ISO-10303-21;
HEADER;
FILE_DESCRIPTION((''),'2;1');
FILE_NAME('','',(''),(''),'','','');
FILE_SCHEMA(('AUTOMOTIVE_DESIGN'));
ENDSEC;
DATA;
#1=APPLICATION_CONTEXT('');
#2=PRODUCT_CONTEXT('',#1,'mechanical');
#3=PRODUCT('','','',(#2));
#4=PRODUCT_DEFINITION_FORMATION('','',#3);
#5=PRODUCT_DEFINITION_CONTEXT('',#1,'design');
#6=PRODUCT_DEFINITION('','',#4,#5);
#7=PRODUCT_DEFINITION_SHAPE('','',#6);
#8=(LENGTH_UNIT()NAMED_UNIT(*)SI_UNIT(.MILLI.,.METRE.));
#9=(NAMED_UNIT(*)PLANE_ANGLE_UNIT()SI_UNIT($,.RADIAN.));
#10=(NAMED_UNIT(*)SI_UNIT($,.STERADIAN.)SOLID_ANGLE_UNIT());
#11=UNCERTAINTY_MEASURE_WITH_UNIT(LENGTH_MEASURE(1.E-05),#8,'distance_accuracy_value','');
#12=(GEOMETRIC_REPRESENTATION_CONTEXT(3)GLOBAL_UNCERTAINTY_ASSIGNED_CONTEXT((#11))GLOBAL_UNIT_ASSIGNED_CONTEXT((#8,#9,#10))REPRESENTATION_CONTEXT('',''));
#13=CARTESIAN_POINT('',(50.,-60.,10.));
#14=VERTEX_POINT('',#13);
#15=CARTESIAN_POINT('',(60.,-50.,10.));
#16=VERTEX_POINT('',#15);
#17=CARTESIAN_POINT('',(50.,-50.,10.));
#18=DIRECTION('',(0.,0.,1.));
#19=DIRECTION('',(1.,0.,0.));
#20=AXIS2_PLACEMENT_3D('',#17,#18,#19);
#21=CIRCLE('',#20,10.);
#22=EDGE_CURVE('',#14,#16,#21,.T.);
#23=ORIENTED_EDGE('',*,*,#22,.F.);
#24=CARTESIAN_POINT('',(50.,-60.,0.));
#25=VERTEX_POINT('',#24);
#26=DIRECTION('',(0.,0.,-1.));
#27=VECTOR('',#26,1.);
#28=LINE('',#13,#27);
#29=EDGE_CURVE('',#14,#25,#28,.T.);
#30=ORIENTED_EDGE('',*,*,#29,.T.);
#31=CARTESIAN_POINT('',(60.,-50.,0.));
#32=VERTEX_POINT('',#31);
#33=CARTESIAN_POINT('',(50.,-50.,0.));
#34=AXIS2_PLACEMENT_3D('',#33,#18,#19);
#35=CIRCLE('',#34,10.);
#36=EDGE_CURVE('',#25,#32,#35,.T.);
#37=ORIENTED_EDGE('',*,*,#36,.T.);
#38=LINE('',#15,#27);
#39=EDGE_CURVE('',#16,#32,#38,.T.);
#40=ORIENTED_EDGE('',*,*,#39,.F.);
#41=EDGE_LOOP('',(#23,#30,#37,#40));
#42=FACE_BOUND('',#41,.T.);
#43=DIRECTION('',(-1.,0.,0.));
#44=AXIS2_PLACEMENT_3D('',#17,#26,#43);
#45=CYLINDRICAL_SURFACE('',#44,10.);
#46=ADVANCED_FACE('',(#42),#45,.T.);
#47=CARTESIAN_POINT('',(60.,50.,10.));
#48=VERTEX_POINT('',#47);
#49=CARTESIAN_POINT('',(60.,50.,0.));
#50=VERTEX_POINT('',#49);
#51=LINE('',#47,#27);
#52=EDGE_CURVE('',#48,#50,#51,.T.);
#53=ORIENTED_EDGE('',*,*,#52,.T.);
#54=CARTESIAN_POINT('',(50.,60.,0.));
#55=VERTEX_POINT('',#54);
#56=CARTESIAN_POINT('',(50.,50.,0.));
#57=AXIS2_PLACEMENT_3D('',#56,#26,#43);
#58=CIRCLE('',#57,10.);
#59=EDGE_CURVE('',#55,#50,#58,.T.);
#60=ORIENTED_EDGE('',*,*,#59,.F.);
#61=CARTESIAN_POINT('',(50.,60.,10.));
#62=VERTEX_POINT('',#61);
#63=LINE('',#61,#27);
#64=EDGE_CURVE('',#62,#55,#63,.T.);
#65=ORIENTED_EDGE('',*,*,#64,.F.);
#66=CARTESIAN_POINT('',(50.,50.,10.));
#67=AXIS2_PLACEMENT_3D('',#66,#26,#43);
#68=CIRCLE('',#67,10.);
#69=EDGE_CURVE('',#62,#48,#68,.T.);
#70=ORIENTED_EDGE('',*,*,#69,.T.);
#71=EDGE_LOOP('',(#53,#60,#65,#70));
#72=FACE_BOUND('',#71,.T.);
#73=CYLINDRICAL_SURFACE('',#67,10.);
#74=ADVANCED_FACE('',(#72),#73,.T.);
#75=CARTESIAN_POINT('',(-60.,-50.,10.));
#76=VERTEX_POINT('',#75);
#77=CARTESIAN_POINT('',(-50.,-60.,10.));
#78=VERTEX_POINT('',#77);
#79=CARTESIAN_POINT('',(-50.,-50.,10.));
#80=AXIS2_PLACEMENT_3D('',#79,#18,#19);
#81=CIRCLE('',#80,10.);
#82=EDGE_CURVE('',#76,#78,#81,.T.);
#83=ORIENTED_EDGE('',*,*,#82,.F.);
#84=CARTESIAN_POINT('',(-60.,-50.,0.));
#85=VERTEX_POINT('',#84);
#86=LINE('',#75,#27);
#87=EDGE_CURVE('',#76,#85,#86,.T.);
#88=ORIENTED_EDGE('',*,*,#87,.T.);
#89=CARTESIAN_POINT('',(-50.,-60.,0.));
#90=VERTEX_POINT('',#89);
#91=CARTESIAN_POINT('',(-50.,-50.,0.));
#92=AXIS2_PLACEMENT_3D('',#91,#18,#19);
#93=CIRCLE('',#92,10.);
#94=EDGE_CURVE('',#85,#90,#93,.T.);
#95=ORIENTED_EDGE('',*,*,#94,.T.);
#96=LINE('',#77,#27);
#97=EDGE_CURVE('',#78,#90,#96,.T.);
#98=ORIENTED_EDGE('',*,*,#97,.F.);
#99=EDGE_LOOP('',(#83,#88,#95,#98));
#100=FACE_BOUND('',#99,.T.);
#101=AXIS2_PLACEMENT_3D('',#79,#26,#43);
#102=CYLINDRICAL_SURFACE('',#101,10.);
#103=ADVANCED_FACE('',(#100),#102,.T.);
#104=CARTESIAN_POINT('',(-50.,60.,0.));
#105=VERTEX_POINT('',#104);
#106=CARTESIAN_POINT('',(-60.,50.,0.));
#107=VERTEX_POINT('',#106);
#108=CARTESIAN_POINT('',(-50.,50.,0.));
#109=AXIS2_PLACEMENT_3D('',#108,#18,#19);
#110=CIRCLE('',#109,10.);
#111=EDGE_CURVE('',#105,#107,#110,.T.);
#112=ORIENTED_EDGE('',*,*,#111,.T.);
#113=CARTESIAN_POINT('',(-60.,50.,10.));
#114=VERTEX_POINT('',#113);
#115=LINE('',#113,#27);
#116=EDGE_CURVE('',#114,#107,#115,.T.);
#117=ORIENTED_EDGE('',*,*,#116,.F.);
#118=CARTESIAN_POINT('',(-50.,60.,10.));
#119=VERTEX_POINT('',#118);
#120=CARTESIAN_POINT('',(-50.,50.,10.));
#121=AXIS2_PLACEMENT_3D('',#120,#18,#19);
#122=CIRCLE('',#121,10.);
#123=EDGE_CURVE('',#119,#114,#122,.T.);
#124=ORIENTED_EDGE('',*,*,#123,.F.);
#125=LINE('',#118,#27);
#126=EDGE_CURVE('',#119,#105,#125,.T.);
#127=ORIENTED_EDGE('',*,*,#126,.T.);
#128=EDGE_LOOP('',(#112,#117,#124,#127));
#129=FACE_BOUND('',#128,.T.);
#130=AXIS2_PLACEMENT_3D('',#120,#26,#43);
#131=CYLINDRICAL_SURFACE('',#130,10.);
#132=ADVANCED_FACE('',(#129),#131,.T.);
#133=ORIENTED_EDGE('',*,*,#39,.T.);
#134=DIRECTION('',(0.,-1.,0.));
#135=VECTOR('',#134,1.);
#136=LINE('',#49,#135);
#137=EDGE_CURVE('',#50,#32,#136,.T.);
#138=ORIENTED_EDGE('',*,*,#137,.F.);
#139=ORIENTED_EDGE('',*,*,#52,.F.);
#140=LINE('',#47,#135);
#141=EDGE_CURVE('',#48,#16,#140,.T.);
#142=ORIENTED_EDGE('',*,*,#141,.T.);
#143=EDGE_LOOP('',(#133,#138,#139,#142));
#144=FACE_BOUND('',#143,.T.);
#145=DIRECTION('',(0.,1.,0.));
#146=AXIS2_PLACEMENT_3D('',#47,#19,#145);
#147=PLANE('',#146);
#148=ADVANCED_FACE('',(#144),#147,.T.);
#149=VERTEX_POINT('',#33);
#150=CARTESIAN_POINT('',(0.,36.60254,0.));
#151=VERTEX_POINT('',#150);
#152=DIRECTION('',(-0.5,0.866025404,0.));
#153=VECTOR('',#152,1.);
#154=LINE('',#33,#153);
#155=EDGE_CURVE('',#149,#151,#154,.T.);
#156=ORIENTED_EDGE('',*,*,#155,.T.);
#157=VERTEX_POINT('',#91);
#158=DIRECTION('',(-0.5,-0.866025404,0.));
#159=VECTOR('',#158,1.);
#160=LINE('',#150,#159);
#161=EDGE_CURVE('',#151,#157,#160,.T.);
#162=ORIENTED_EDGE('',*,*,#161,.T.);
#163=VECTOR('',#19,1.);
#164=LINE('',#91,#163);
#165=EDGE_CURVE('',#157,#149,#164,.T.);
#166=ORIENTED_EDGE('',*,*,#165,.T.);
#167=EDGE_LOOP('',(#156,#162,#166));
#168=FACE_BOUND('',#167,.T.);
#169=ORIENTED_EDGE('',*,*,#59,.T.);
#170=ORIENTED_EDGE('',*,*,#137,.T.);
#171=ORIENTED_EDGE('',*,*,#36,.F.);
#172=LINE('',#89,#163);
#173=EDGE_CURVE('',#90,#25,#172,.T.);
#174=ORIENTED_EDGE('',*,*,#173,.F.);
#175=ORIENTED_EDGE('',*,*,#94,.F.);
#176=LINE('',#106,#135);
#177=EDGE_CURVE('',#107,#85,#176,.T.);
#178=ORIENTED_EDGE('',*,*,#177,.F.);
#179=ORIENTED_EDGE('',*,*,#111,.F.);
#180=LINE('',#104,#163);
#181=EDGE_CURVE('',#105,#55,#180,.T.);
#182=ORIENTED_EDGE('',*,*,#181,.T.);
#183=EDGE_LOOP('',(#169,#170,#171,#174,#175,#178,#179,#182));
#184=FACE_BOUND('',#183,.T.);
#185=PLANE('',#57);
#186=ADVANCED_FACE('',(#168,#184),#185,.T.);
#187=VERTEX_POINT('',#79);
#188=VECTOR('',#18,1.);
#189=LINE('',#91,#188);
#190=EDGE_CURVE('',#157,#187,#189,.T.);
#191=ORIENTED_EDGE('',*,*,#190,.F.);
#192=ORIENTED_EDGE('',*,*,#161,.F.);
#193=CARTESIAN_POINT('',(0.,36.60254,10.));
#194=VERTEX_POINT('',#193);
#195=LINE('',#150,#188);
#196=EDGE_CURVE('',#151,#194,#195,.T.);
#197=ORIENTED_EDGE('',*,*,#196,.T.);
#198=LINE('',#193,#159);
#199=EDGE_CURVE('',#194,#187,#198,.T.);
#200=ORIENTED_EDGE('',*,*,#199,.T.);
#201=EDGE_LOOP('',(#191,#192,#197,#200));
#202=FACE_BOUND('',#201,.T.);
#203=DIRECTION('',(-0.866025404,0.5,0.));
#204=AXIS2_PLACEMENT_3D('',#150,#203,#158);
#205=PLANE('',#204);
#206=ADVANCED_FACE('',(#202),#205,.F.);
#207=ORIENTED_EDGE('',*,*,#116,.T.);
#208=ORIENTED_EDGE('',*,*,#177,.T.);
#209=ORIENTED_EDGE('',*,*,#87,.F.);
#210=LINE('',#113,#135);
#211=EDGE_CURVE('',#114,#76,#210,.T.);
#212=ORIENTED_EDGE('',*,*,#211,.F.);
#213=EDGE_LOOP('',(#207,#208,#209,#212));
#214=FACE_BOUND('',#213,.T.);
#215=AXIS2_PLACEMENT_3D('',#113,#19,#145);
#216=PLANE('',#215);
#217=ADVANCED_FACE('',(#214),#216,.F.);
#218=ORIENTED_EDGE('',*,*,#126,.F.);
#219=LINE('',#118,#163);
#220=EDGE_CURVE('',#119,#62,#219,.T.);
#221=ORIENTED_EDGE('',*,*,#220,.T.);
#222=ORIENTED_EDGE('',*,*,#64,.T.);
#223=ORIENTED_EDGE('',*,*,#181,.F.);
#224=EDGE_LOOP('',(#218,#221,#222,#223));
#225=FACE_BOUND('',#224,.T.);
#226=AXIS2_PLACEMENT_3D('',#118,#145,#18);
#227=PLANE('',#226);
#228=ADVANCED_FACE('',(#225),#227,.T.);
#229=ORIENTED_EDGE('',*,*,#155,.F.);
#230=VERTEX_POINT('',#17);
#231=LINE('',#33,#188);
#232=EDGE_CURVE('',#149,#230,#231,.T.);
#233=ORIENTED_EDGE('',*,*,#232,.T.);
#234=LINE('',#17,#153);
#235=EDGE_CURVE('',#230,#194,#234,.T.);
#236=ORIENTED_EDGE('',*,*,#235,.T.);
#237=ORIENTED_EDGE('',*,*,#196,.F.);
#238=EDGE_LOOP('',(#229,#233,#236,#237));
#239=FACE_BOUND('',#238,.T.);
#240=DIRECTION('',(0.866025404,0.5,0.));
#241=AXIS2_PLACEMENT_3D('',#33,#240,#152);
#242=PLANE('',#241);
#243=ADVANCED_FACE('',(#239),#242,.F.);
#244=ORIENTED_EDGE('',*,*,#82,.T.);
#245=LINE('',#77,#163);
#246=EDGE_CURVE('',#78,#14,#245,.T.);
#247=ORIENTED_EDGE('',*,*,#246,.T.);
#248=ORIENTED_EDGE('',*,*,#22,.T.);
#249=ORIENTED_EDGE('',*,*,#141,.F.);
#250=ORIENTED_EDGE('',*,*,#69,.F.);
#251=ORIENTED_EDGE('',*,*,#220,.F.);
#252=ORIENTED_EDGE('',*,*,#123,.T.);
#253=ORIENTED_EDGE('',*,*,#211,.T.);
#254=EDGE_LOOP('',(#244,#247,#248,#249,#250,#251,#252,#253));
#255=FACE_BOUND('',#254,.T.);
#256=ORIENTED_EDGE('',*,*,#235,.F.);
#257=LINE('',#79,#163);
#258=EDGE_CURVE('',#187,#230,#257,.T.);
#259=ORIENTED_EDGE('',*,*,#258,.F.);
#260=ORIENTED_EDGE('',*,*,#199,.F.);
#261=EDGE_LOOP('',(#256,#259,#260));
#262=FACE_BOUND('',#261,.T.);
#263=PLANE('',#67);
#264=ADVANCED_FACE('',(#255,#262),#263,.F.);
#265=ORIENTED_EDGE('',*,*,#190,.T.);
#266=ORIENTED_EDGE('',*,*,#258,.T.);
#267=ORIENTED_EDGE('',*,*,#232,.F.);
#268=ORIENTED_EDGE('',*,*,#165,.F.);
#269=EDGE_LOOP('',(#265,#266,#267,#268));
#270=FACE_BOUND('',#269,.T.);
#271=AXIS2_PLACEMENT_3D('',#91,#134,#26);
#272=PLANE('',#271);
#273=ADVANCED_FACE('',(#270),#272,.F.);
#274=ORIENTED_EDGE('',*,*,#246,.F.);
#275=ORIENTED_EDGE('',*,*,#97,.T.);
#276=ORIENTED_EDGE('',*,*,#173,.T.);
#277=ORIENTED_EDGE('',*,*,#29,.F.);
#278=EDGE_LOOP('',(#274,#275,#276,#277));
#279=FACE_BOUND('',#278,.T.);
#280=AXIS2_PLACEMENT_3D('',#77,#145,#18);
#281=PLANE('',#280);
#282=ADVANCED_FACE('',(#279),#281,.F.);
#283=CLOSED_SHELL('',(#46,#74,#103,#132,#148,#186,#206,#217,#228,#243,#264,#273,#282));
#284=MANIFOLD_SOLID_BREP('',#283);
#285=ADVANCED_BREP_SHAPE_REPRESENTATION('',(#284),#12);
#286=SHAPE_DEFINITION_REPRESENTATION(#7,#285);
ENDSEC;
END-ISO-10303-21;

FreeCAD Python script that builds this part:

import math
import FreeCAD as App
import Part
import Sketcher

V = App.Vector
Q = App.Units.Quantity


def add_polygon(sketch, points):
    """Adds a closed chain of lines whose ends are joined by coincident constraints."""
    first, n = sketch.GeometryCount, len(points)
    for a, b in zip(points, points[1:] + points[:1]):
        sketch.addGeometry(Part.LineSegment(App.Vector(*a, 0), App.Vector(*b, 0)), False)
    for i in range(n):
        sketch.addConstraint(Sketcher.Constraint("Coincident", first + i, 2, first + (i + 1) % n, 1))

doc = App.newDocument("Part")
body = doc.addObject("PartDesign::Body", "Body")

# Sketch on XY plane
sketch1 = body.newObject("Sketcher::SketchObject", "Sketch")
sketch1.AttachmentSupport = (doc.getObject("XY_Plane"), [""])
sketch1.MapMode = "FlatFace"
sketch1.addGeometry([
    Part.LineSegment(V(50, 60, 0), V(-50, 60, 0)),  # 0
    Part.ArcOfCircle(Part.Circle(V(-50, 50, 0), V(0, 0, 1), 10), math.radians(90), math.radians(180)),  # 1
    Part.LineSegment(V(-60, 50, 0), V(-60, -50, 0)),  # 2
    Part.ArcOfCircle(Part.Circle(V(-50, -50, 0), V(0, 0, 1), 10), math.radians(180), math.radians(270)),  # 3
    Part.LineSegment(V(-50, -60, 0), V(50, -60, 0)),  # 4
    Part.ArcOfCircle(Part.Circle(V(50, -50, 0), V(0, 0, 1), 10), math.radians(-90), math.radians(0)),  # 5
    Part.LineSegment(V(60, -50, 0), V(60, 50, 0)),  # 6
    Part.ArcOfCircle(Part.Circle(V(50, 50, 0), V(0, 0, 1), 10), math.radians(0), math.radians(90)),  # 7
], False)
sketch1.addConstraint([
    Sketcher.Constraint("Tangent", 0, 2, 1, 1),
    Sketcher.Constraint("Tangent", 1, 2, 2, 1),
    Sketcher.Constraint("Tangent", 2, 2, 3, 1),
    Sketcher.Constraint("Tangent", 3, 2, 4, 1),
    Sketcher.Constraint("Tangent", 4, 2, 5, 1),
    Sketcher.Constraint("Tangent", 5, 2, 6, 1),
    Sketcher.Constraint("Tangent", 6, 2, 7, 1),
    Sketcher.Constraint("Tangent", 7, 2, 0, 1),
    Sketcher.Constraint("Horizontal", 0),
    Sketcher.Constraint("Vertical", 2),
    Sketcher.Constraint("Horizontal", 4),
    Sketcher.Constraint("Vertical", 6),
    Sketcher.Constraint("Equal", 1, 3),
    Sketcher.Constraint("Equal", 3, 5),
    Sketcher.Constraint("Equal", 5, 7),
    Sketcher.Constraint("Symmetric", 1, 3, 5, 3, -1, 1),
    Sketcher.Constraint("Equal", 4, 2),
    Sketcher.Constraint("Radius", 1, Q("10 mm")),
    Sketcher.Constraint("DistanceX", 0, 2, 0, 1, Q("100 mm")),
])
pad1 = body.newObject("PartDesign::Pad", "Pad")
pad1.Profile = sketch1
pad1.Length = 10

# Sketch on XY plane
sketch2 = body.newObject("Sketcher::SketchObject", "Sketch001")
sketch2.AttachmentSupport = (doc.getObject("XY_Plane"), [""])
sketch2.MapMode = "FlatFace"
sketch2.AttachmentOffset = App.Placement(V(0, 0, 10), App.Rotation())
add_polygon(sketch2, [(-50, -50), (50, -50), (0, 37)])  # lines 0-2
sketch2.addConstraint([
    Sketcher.Constraint("Horizontal", 0),
    Sketcher.Constraint("PointOnObject", 1, 2, -2),
    Sketcher.Constraint("Equal", 1, 2),
    Sketcher.Constraint("DistanceX", 0, 1, 0, 2, Q("100 mm")),
    Sketcher.Constraint("Angle", 1, Q("120 deg")),
    Sketcher.Constraint("DistanceY", 0, 2, -1, 1, Q("50 mm")),
])
pocket1 = body.newObject("PartDesign::Pocket", "Pocket")
pocket1.Profile = sketch2
pocket1.Length = 10

doc.recompute()
